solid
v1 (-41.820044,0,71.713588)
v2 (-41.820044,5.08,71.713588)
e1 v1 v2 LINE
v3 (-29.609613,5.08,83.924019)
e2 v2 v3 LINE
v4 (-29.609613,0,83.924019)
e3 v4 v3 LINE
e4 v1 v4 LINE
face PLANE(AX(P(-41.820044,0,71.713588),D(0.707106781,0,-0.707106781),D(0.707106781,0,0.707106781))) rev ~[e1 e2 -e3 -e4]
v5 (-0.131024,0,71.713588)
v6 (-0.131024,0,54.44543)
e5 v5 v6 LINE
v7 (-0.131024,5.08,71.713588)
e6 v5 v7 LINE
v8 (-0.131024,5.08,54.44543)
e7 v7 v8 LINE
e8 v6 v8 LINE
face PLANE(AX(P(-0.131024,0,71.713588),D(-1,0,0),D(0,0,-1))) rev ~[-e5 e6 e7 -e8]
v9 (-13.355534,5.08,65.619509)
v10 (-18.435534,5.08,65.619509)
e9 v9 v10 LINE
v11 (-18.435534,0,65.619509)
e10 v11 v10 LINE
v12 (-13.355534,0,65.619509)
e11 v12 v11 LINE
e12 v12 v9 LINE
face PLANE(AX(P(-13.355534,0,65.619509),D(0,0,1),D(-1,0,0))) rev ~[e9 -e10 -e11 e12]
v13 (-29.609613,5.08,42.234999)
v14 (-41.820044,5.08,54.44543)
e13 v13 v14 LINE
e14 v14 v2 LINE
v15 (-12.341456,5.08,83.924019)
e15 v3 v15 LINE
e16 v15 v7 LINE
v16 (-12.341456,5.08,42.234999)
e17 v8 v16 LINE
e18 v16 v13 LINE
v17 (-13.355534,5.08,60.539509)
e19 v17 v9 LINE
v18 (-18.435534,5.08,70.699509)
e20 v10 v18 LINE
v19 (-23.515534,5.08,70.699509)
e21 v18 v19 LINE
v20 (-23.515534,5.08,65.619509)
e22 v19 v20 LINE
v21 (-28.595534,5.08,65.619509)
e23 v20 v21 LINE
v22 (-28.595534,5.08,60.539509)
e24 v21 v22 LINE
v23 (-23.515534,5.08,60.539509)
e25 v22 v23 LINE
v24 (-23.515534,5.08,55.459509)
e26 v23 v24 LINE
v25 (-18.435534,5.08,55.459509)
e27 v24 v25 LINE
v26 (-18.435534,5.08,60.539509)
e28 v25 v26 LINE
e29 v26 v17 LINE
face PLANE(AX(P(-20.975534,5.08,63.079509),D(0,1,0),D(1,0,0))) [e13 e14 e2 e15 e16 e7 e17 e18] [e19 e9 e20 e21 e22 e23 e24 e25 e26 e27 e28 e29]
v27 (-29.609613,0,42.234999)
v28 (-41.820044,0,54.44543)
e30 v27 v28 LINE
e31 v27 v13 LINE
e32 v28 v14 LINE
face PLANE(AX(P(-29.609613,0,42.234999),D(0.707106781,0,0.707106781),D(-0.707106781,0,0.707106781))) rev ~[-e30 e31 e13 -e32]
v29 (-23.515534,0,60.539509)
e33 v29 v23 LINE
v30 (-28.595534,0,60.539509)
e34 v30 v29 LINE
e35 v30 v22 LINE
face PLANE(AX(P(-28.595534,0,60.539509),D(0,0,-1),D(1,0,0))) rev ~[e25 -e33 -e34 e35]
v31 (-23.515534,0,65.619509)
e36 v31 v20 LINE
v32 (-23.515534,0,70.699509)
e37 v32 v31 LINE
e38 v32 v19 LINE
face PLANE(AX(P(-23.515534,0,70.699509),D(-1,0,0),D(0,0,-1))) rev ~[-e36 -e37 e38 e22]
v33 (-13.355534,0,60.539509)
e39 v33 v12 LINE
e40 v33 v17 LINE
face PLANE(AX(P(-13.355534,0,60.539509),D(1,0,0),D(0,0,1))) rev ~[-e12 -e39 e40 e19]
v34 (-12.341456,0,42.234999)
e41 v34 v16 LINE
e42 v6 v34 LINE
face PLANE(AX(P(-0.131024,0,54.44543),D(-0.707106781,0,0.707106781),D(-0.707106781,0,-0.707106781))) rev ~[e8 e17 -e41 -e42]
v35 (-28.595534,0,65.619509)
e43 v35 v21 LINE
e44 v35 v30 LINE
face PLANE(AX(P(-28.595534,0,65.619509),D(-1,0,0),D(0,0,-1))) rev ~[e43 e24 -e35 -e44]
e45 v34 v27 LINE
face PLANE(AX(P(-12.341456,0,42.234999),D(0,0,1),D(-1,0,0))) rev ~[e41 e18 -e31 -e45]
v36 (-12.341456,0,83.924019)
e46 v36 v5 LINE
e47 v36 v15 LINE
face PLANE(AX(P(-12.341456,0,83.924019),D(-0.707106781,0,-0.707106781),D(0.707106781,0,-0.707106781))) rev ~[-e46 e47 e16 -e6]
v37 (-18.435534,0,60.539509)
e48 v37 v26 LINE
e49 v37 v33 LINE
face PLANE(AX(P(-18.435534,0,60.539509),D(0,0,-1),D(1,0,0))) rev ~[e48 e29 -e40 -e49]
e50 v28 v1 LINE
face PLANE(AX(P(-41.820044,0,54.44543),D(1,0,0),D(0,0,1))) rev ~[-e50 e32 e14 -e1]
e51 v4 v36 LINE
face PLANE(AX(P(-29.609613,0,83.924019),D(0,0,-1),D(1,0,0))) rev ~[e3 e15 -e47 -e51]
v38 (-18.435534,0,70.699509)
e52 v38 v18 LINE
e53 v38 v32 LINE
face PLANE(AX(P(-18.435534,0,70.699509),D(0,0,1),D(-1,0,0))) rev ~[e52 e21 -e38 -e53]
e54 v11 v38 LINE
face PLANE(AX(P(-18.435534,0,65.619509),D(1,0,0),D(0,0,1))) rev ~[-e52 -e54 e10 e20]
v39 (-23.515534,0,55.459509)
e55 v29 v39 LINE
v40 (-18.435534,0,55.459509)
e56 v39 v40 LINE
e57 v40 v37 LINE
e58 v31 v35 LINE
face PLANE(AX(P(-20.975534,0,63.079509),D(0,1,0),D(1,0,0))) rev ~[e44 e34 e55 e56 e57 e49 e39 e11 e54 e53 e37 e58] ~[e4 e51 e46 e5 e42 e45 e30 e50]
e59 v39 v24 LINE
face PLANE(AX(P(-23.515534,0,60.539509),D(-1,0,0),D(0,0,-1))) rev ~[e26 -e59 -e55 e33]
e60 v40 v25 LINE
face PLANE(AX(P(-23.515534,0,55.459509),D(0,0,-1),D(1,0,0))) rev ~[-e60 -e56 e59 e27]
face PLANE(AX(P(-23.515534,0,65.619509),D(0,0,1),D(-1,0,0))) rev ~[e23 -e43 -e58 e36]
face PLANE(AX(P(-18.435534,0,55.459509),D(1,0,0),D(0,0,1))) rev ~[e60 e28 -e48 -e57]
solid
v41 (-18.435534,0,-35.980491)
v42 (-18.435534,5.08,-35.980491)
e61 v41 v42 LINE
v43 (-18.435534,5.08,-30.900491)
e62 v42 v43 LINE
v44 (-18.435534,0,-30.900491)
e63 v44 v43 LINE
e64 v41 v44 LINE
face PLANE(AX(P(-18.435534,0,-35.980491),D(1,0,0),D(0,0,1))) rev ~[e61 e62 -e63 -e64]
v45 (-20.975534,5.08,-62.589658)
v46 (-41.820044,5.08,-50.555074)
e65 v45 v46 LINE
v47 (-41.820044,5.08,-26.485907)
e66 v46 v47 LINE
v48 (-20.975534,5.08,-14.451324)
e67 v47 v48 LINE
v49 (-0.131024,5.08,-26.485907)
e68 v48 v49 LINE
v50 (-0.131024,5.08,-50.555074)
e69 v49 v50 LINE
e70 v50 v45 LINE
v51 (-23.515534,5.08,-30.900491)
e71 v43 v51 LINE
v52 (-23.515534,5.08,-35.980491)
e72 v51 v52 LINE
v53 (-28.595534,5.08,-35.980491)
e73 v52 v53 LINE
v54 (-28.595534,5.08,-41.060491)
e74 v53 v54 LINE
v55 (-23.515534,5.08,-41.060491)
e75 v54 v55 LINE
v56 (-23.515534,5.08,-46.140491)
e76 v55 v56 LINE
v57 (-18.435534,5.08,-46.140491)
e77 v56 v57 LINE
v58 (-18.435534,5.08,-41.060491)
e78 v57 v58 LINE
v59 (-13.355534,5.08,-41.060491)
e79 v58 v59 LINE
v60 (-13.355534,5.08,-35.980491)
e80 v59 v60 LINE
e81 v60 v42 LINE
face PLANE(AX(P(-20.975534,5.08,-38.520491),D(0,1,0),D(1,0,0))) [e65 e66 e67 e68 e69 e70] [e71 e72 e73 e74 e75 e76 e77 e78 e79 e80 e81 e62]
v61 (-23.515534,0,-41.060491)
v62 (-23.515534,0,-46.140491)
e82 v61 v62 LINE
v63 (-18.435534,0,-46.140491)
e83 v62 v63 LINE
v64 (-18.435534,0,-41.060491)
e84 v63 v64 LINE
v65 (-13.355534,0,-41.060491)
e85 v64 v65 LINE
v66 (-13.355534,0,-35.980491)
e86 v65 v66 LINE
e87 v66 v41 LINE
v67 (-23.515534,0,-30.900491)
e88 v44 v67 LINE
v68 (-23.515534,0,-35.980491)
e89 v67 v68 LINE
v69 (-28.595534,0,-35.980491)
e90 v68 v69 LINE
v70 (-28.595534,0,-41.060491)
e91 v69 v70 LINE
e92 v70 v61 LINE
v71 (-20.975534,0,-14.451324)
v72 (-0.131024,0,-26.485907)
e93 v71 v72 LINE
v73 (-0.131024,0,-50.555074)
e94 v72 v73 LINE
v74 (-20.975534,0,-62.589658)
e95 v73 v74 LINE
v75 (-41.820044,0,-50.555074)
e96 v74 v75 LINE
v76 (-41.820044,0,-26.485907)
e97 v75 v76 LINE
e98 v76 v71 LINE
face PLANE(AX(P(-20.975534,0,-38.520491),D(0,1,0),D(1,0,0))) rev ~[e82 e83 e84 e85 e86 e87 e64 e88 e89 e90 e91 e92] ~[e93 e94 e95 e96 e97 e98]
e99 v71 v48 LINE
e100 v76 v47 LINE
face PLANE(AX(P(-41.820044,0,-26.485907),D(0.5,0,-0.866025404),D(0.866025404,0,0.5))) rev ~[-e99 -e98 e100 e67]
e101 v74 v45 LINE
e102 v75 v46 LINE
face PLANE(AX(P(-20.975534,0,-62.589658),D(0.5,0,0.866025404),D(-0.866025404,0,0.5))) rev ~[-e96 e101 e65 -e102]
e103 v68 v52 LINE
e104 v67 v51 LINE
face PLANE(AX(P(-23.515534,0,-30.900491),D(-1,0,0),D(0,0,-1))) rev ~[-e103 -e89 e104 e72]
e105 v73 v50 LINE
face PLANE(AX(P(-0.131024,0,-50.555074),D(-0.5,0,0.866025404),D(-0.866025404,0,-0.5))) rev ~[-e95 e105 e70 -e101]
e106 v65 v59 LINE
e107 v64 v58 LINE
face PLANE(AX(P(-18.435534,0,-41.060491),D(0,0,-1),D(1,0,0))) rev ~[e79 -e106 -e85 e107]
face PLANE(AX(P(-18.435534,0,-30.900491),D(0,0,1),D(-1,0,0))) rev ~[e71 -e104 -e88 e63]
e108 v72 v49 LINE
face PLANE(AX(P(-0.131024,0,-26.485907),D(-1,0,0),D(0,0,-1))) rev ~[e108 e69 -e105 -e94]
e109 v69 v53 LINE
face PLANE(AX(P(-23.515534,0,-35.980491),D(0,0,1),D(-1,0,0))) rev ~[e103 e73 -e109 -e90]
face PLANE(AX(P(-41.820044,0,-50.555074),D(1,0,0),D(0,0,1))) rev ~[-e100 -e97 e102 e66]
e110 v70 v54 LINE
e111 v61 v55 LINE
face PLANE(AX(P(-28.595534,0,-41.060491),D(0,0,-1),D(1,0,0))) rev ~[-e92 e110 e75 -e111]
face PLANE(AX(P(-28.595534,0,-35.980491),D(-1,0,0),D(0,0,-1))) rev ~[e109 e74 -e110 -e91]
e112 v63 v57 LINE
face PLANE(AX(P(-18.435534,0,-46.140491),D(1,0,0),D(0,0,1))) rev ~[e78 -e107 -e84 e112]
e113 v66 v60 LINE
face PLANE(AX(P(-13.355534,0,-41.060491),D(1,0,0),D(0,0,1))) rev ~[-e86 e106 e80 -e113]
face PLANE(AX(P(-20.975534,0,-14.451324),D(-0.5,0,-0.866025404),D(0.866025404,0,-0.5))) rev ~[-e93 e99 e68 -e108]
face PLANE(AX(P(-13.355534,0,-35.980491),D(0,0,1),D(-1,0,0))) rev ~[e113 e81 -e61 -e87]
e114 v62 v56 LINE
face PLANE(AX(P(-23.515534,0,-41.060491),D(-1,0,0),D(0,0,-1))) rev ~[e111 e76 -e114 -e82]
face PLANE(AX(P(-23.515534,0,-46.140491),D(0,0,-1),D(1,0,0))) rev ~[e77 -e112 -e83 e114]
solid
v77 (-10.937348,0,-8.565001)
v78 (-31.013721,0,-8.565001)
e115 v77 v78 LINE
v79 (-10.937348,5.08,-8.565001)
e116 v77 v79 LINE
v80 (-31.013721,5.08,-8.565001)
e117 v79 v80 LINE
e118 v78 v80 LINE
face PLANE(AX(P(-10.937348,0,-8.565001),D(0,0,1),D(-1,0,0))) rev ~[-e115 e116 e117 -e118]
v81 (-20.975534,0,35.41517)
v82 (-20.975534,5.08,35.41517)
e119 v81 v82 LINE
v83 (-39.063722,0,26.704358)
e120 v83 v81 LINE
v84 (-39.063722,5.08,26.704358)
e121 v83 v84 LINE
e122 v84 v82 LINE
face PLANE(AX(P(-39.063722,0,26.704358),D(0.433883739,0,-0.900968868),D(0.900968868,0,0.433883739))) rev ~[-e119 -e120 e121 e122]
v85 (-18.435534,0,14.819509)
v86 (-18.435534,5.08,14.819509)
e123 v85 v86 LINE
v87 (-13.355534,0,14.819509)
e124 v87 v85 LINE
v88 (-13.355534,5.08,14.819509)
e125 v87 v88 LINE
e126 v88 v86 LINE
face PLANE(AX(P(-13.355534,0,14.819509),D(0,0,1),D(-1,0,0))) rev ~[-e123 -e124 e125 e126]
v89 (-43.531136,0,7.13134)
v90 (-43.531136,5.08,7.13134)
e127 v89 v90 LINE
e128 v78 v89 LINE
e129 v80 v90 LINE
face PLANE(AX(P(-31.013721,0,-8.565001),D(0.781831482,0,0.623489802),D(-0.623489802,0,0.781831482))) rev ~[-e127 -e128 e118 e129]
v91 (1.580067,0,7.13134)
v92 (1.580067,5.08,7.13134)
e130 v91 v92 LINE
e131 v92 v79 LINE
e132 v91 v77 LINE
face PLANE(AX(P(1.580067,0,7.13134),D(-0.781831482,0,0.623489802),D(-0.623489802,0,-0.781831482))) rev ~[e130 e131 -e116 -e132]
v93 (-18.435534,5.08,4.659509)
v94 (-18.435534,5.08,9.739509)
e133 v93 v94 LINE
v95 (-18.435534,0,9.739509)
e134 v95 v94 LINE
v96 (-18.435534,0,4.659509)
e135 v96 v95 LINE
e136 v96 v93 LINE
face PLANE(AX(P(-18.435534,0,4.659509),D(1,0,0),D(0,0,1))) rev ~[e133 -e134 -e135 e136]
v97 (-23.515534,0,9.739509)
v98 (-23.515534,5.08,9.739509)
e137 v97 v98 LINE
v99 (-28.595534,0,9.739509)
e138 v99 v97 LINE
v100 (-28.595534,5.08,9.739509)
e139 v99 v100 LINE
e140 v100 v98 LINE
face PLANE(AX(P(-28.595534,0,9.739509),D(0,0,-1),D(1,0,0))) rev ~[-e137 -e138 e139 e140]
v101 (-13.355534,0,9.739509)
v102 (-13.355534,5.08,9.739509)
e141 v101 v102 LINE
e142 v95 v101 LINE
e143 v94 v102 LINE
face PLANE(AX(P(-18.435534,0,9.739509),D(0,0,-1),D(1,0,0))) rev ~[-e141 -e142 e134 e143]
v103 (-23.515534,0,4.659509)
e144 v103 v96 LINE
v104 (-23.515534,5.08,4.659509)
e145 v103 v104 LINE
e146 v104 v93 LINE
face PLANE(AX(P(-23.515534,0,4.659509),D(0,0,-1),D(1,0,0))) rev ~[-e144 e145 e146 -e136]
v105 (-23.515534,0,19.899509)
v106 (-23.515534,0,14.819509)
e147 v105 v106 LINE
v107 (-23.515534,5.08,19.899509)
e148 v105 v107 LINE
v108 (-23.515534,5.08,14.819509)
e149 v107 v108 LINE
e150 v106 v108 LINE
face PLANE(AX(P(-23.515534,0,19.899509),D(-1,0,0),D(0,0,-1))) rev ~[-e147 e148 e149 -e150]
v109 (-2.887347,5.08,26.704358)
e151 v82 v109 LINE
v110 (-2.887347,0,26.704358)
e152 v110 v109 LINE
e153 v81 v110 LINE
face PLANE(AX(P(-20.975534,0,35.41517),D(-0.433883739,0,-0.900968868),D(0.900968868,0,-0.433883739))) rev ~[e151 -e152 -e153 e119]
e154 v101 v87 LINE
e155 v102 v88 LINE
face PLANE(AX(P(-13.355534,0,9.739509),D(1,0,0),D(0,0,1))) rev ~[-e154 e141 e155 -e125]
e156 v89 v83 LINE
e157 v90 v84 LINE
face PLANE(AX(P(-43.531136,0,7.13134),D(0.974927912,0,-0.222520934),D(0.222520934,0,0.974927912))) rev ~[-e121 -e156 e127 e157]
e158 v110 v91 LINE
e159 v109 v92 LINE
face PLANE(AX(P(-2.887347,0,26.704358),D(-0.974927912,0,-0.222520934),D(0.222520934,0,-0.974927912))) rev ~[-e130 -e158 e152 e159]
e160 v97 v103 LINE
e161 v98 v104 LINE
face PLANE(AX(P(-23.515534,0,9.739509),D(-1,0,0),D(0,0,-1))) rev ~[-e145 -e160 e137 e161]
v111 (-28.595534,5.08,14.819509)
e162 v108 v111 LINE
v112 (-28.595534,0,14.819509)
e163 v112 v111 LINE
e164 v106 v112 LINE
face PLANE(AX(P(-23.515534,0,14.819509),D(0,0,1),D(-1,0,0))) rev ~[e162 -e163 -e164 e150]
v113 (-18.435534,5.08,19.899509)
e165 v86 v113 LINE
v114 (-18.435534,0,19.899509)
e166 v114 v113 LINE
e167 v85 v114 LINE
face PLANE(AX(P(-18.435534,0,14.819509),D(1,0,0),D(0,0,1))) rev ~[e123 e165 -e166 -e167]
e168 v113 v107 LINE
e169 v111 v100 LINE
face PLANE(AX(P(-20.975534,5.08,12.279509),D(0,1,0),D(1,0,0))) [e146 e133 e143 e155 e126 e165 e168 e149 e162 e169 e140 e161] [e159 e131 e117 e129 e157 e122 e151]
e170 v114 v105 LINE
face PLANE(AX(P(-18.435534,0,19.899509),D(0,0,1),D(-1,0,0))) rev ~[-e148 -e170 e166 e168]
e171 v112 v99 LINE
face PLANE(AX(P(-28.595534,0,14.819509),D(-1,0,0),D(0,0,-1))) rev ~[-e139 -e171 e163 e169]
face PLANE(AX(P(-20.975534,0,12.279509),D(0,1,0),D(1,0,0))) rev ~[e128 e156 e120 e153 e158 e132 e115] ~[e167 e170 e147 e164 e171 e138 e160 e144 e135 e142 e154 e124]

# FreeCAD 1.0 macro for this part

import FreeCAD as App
import Part
import Sketcher

V = App.Vector
Q = App.Units.Quantity


def add_polygon(sketch, points):
    """Adds a closed chain of lines whose ends are joined by coincident constraints."""
    first, n = sketch.GeometryCount, len(points)
    for a, b in zip(points, points[1:] + points[:1]):
        sketch.addGeometry(Part.LineSegment(App.Vector(*a, 0), App.Vector(*b, 0)), False)
    for i in range(n):
        sketch.addConstraint(Sketcher.Constraint("Coincident", first + i, 2, first + (i + 1) % n, 1))

doc = App.newDocument("Part")
body = doc.addObject("PartDesign::Body", "Body")

# Sketch on XZ plane
sketch1 = doc.addObject("Sketcher::SketchObject", "Sketch")
body.addObject(sketch1)
sketch1.AttachmentSupport = (doc.XZ_Plane, [""])
sketch1.MapMode = "FlatFace"
add_polygon(sketch1, [(-21, -14), (0, -26), (0, -51), (-21, -63), (-42, -51), (-42, -26)])  # lines 0-5
add_polygon(sketch1, [(-24, -46), (-18, -46), (-18, -41), (-13, -41), (-13, -36), (-18, -36), (-18, -31), (-24, -31), (-24, -36), (-29, -36), (-29, -41), (-24, -41)])  # lines 6-17
sketch1.addConstraint(Sketcher.Constraint("Vertical", 1))
sketch1.addConstraint(Sketcher.Constraint("Vertical", 4))
sketch1.addConstraint(Sketcher.Constraint("Horizontal", 6))
sketch1.addConstraint(Sketcher.Constraint("Vertical", 7))
sketch1.addConstraint(Sketcher.Constraint("Horizontal", 8))
sketch1.addConstraint(Sketcher.Constraint("Vertical", 9))
sketch1.addConstraint(Sketcher.Constraint("Horizontal", 10))
sketch1.addConstraint(Sketcher.Constraint("Vertical", 11))
sketch1.addConstraint(Sketcher.Constraint("Horizontal", 12))
sketch1.addConstraint(Sketcher.Constraint("Vertical", 13))
sketch1.addConstraint(Sketcher.Constraint("Horizontal", 14))
sketch1.addConstraint(Sketcher.Constraint("Vertical", 15))
sketch1.addConstraint(Sketcher.Constraint("Horizontal", 16))
sketch1.addConstraint(Sketcher.Constraint("Vertical", 17))
sketch1.addConstraint(Sketcher.Constraint("Parallel", 0, 3))
sketch1.addConstraint(Sketcher.Constraint("Parallel", 2, 5))
sketch1.addConstraint(Sketcher.Constraint("Horizontal", 1, 2, 3, 2))
sketch1.addConstraint(Sketcher.Constraint("Horizontal", 0, 2, 4, 2))
sketch1.addConstraint(Sketcher.Constraint("Horizontal", 10, 2, 13, 2))
sketch1.addConstraint(Sketcher.Constraint("Horizontal", 8, 2, 15, 2))
sketch1.addConstraint(Sketcher.Constraint("Vertical", 2, 2, 5, 2))
sketch1.addConstraint(Sketcher.Constraint("Vertical", 7, 2, 10, 2))
sketch1.addConstraint(Sketcher.Constraint("Vertical", 13, 2, 16, 2))
sketch1.addConstraint(Sketcher.Constraint("Equal", 6, 8))
sketch1.addConstraint(Sketcher.Constraint("Equal", 12, 14))
sketch1.addConstraint(Sketcher.Constraint("Equal", 16, 7))
sketch1.addConstraint(Sketcher.Constraint("Equal", 7, 9))
sketch1.addConstraint(Sketcher.Constraint("Equal", 9, 11))
sketch1.addConstraint(Sketcher.Constraint("DistanceX", 6, 1, 6, 2, Q("0.2 in")))
sketch1.addConstraint(Sketcher.Constraint("Angle", 0, Q("-30 deg")))
sketch1.addConstraint(Sketcher.Constraint("DistanceX", 2, 2, 6, 2, Q("0.1 in")))
sketch1.addConstraint(Sketcher.Constraint("DistanceX", 3, 2, 1, 2, Q("1.6413 in")))
sketch1.addConstraint(Sketcher.Constraint("DistanceY", 1, 2, 1, 1, Q("24.069167 mm")))
sketch1.addConstraint(Sketcher.Constraint("DistanceY", 6, 2, -1, 1, Q("46.140491 mm")))
sketch1.addConstraint(Sketcher.Constraint("DistanceX", 0, 2, -1, 1, Q("0.131024 mm")))
sketch1.addConstraint(Sketcher.Constraint("DistanceY", 0, 2, -1, 1, Q("26.485907 mm")))
pad1 = doc.addObject("PartDesign::Pad", "Pad")
body.addObject(pad1)
pad1.Profile = sketch1
pad1.Length = Q("0.2 in")
pad1.Reversed = True
body2 = doc.addObject("PartDesign::Body", "Body001")

# Sketch on XZ plane
sketch2 = doc.addObject("Sketcher::SketchObject", "Sketch001")
body2.addObject(sketch2)
sketch2.AttachmentSupport = (doc.getObject("XZ_Plane001"), [""])
sketch2.MapMode = "FlatFace"
add_polygon(sketch2, [(-21, 35), (-3, 27), (2, 7), (-11, -9), (-31, -9), (-44, 7), (-39, 27)])  # lines 0-6
add_polygon(sketch2, [(-24, 20), (-24, 15), (-29, 15), (-29, 10), (-24, 10), (-24, 5), (-18, 5), (-18, 10), (-13, 10), (-13, 15), (-18, 15), (-18, 20)])  # lines 7-18
sketch2.addConstraint(Sketcher.Constraint("Horizontal", 3))
sketch2.addConstraint(Sketcher.Constraint("Vertical", 7))
sketch2.addConstraint(Sketcher.Constraint("Horizontal", 8))
sketch2.addConstraint(Sketcher.Constraint("Vertical", 9))
sketch2.addConstraint(Sketcher.Constraint("Horizontal", 10))
sketch2.addConstraint(Sketcher.Constraint("Vertical", 11))
sketch2.addConstraint(Sketcher.Constraint("Horizontal", 12))
sketch2.addConstraint(Sketcher.Constraint("Vertical", 13))
sketch2.addConstraint(Sketcher.Constraint("Horizontal", 14))
sketch2.addConstraint(Sketcher.Constraint("Vertical", 15))
sketch2.addConstraint(Sketcher.Constraint("Horizontal", 16))
sketch2.addConstraint(Sketcher.Constraint("Vertical", 17))
sketch2.addConstraint(Sketcher.Constraint("Horizontal", 18))
sketch2.addConstraint(Sketcher.Constraint("Horizontal", 1, 2, 4, 2))
sketch2.addConstraint(Sketcher.Constraint("Horizontal", 0, 2, 5, 2))
sketch2.addConstraint(Sketcher.Constraint("Horizontal", 10, 2, 13, 2))
sketch2.addConstraint(Sketcher.Constraint("Horizontal", 8, 2, 15, 2))
sketch2.addConstraint(Sketcher.Constraint("Vertical", 7, 2, 10, 2))
sketch2.addConstraint(Sketcher.Constraint("Vertical", 13, 2, 16, 2))
sketch2.addConstraint(Sketcher.Constraint("Equal", 10, 12))
sketch2.addConstraint(Sketcher.Constraint("Equal", 12, 14))
sketch2.addConstraint(Sketcher.Constraint("Equal", 18, 7))
sketch2.addConstraint(Sketcher.Constraint("Equal", 7, 9))
sketch2.addConstraint(Sketcher.Constraint("Equal", 9, 11))
sketch2.addConstraint(Sketcher.Constraint("Equal", 0, 1))
sketch2.addConstraint(Sketcher.Constraint("Equal", 1, 2))
sketch2.addConstraint(Sketcher.Constraint("Equal", 2, 4))
sketch2.addConstraint(Sketcher.Constraint("Equal", 4, 5))
sketch2.addConstraint(Sketcher.Constraint("Equal", 5, 6))
sketch2.addConstraint(Sketcher.Constraint("DistanceX", 8, 2, 8, 1, Q("0.2 in")))
sketch2.addConstraint(Sketcher.Constraint("DistanceX", 7, 2, 6, 2, Q("0.1 in")))
sketch2.addConstraint(Sketcher.Constraint("DistanceY", 2, 2, -1, 1, Q("8.565001 mm")))
sketch2.addConstraint(Sketcher.Constraint("DistanceX", 2, 2, 0, 2, Q("8.050001 mm")))
sketch2.addConstraint(Sketcher.Constraint("DistanceX", 6, 2, 1, 2, Q("22.555601 mm")))
sketch2.addConstraint(Sketcher.Constraint("DistanceX", 3, 2, 3, 1, Q("20.076374 mm")))
sketch2.addConstraint(Sketcher.Constraint("DistanceY", -1, 1, 1, 2, Q("7.13134 mm")))
sketch2.addConstraint(Sketcher.Constraint("DistanceX", 3, 2, -1, 1, Q("31.013721 mm")))
sketch2.addConstraint(Sketcher.Constraint("DistanceY", -1, 1, 7, 2, Q("14.819509 mm")))
pad2 = doc.addObject("PartDesign::Pad", "Pad001")
body2.addObject(pad2)
pad2.Profile = sketch2
pad2.Length = Q("0.2 in")
pad2.Reversed = True
body3 = doc.addObject("PartDesign::Body", "Body002")

# Sketch on XZ plane
sketch3 = doc.addObject("Sketcher::SketchObject", "Sketch002")
body3.addObject(sketch3)
sketch3.AttachmentSupport = (doc.getObject("XZ_Plane002"), [""])
sketch3.MapMode = "FlatFace"
add_polygon(sketch3, [(-12, 42), (-30, 42), (-42, 54), (-42, 72), (-30, 84), (-12, 84), (0, 72), (0, 54)])  # lines 0-7
add_polygon(sketch3, [(-13, 66), (-18, 66), (-18, 71), (-24, 71), (-24, 66), (-29, 66), (-29, 61), (-24, 61), (-24, 55), (-18, 55), (-18, 61), (-13, 61)])  # lines 8-19
sketch3.addConstraint(Sketcher.Constraint("Horizontal", 0))
sketch3.addConstraint(Sketcher.Constraint("Vertical", 2))
sketch3.addConstraint(Sketcher.Constraint("Horizontal", 4))
sketch3.addConstraint(Sketcher.Constraint("Vertical", 6))
sketch3.addConstraint(Sketcher.Constraint("Horizontal", 8))
sketch3.addConstraint(Sketcher.Constraint("Vertical", 9))
sketch3.addConstraint(Sketcher.Constraint("Horizontal", 10))
sketch3.addConstraint(Sketcher.Constraint("Vertical", 11))
sketch3.addConstraint(Sketcher.Constraint("Horizontal", 12))
sketch3.addConstraint(Sketcher.Constraint("Vertical", 13))
sketch3.addConstraint(Sketcher.Constraint("Horizontal", 14))
sketch3.addConstraint(Sketcher.Constraint("Vertical", 15))
sketch3.addConstraint(Sketcher.Constraint("Horizontal", 16))
sketch3.addConstraint(Sketcher.Constraint("Vertical", 17))
sketch3.addConstraint(Sketcher.Constraint("Horizontal", 18))
sketch3.addConstraint(Sketcher.Constraint("Vertical", 19))
sketch3.addConstraint(Sketcher.Constraint("Perpendicular", 1, 3))
sketch3.addConstraint(Sketcher.Constraint("Perpendicular", 3, 5))
sketch3.addConstraint(Sketcher.Constraint("Perpendicular", 5, 7))
sketch3.addConstraint(Sketcher.Constraint("Horizontal", 2, 2, 5, 2))
sketch3.addConstraint(Sketcher.Constraint("Horizontal", 1, 2, 6, 2))
sketch3.addConstraint(Sketcher.Constraint("Horizontal", 8, 2, 11, 2))
sketch3.addConstraint(Sketcher.Constraint("Horizontal", 14, 2, 17, 2))
sketch3.addConstraint(Sketcher.Constraint("Vertical", 0, 2, 3, 2))
sketch3.addConstraint(Sketcher.Constraint("Vertical", 4, 2, 7, 2))
sketch3.addConstraint(Sketcher.Constraint("Vertical", 11, 2, 14, 2))
sketch3.addConstraint(Sketcher.Constraint("Vertical", 9, 2, 16, 2))
sketch3.addConstraint(Sketcher.Constraint("Equal", 8, 10))
sketch3.addConstraint(Sketcher.Constraint("Equal", 10, 12))
sketch3.addConstraint(Sketcher.Constraint("Equal", 4, 2))
sketch3.addConstraint(Sketcher.Constraint("Equal", 18, 9))
sketch3.addConstraint(Sketcher.Constraint("Equal", 11, 13))
sketch3.addConstraint(Sketcher.Constraint("Equal", 13, 15))
sketch3.addConstraint(Sketcher.Constraint("DistanceX", 8, 2, 8, 1, Q("0.2 in")))
sketch3.addConstraint(Sketcher.Constraint("DistanceY", 0, 2, 3, 2, Q("1.6413 in")))
sketch3.addConstraint(Sketcher.Constraint("DistanceY", -1, 1, 0, 2, Q("42.234999 mm")))
sketch3.addConstraint(Sketcher.Constraint("DistanceX", 0, 2, 0, 1, Q("17.268157 mm")))
sketch3.addConstraint(Sketcher.Constraint("DistanceY", -1, 1, 8, 2, Q("65.619509 mm")))
sketch3.addConstraint(Sketcher.Constraint("DistanceX", 8, 2, 5, 2, Q("18.30451 mm")))
sketch3.addConstraint(Sketcher.Constraint("DistanceX", 0, 2, -1, 1, Q("29.609613 mm")))
pad3 = doc.addObject("PartDesign::Pad", "Pad002")
body3.addObject(pad3)
pad3.Profile = sketch3
pad3.Length = Q("0.2 in")
pad3.Reversed = True

doc.recompute()
